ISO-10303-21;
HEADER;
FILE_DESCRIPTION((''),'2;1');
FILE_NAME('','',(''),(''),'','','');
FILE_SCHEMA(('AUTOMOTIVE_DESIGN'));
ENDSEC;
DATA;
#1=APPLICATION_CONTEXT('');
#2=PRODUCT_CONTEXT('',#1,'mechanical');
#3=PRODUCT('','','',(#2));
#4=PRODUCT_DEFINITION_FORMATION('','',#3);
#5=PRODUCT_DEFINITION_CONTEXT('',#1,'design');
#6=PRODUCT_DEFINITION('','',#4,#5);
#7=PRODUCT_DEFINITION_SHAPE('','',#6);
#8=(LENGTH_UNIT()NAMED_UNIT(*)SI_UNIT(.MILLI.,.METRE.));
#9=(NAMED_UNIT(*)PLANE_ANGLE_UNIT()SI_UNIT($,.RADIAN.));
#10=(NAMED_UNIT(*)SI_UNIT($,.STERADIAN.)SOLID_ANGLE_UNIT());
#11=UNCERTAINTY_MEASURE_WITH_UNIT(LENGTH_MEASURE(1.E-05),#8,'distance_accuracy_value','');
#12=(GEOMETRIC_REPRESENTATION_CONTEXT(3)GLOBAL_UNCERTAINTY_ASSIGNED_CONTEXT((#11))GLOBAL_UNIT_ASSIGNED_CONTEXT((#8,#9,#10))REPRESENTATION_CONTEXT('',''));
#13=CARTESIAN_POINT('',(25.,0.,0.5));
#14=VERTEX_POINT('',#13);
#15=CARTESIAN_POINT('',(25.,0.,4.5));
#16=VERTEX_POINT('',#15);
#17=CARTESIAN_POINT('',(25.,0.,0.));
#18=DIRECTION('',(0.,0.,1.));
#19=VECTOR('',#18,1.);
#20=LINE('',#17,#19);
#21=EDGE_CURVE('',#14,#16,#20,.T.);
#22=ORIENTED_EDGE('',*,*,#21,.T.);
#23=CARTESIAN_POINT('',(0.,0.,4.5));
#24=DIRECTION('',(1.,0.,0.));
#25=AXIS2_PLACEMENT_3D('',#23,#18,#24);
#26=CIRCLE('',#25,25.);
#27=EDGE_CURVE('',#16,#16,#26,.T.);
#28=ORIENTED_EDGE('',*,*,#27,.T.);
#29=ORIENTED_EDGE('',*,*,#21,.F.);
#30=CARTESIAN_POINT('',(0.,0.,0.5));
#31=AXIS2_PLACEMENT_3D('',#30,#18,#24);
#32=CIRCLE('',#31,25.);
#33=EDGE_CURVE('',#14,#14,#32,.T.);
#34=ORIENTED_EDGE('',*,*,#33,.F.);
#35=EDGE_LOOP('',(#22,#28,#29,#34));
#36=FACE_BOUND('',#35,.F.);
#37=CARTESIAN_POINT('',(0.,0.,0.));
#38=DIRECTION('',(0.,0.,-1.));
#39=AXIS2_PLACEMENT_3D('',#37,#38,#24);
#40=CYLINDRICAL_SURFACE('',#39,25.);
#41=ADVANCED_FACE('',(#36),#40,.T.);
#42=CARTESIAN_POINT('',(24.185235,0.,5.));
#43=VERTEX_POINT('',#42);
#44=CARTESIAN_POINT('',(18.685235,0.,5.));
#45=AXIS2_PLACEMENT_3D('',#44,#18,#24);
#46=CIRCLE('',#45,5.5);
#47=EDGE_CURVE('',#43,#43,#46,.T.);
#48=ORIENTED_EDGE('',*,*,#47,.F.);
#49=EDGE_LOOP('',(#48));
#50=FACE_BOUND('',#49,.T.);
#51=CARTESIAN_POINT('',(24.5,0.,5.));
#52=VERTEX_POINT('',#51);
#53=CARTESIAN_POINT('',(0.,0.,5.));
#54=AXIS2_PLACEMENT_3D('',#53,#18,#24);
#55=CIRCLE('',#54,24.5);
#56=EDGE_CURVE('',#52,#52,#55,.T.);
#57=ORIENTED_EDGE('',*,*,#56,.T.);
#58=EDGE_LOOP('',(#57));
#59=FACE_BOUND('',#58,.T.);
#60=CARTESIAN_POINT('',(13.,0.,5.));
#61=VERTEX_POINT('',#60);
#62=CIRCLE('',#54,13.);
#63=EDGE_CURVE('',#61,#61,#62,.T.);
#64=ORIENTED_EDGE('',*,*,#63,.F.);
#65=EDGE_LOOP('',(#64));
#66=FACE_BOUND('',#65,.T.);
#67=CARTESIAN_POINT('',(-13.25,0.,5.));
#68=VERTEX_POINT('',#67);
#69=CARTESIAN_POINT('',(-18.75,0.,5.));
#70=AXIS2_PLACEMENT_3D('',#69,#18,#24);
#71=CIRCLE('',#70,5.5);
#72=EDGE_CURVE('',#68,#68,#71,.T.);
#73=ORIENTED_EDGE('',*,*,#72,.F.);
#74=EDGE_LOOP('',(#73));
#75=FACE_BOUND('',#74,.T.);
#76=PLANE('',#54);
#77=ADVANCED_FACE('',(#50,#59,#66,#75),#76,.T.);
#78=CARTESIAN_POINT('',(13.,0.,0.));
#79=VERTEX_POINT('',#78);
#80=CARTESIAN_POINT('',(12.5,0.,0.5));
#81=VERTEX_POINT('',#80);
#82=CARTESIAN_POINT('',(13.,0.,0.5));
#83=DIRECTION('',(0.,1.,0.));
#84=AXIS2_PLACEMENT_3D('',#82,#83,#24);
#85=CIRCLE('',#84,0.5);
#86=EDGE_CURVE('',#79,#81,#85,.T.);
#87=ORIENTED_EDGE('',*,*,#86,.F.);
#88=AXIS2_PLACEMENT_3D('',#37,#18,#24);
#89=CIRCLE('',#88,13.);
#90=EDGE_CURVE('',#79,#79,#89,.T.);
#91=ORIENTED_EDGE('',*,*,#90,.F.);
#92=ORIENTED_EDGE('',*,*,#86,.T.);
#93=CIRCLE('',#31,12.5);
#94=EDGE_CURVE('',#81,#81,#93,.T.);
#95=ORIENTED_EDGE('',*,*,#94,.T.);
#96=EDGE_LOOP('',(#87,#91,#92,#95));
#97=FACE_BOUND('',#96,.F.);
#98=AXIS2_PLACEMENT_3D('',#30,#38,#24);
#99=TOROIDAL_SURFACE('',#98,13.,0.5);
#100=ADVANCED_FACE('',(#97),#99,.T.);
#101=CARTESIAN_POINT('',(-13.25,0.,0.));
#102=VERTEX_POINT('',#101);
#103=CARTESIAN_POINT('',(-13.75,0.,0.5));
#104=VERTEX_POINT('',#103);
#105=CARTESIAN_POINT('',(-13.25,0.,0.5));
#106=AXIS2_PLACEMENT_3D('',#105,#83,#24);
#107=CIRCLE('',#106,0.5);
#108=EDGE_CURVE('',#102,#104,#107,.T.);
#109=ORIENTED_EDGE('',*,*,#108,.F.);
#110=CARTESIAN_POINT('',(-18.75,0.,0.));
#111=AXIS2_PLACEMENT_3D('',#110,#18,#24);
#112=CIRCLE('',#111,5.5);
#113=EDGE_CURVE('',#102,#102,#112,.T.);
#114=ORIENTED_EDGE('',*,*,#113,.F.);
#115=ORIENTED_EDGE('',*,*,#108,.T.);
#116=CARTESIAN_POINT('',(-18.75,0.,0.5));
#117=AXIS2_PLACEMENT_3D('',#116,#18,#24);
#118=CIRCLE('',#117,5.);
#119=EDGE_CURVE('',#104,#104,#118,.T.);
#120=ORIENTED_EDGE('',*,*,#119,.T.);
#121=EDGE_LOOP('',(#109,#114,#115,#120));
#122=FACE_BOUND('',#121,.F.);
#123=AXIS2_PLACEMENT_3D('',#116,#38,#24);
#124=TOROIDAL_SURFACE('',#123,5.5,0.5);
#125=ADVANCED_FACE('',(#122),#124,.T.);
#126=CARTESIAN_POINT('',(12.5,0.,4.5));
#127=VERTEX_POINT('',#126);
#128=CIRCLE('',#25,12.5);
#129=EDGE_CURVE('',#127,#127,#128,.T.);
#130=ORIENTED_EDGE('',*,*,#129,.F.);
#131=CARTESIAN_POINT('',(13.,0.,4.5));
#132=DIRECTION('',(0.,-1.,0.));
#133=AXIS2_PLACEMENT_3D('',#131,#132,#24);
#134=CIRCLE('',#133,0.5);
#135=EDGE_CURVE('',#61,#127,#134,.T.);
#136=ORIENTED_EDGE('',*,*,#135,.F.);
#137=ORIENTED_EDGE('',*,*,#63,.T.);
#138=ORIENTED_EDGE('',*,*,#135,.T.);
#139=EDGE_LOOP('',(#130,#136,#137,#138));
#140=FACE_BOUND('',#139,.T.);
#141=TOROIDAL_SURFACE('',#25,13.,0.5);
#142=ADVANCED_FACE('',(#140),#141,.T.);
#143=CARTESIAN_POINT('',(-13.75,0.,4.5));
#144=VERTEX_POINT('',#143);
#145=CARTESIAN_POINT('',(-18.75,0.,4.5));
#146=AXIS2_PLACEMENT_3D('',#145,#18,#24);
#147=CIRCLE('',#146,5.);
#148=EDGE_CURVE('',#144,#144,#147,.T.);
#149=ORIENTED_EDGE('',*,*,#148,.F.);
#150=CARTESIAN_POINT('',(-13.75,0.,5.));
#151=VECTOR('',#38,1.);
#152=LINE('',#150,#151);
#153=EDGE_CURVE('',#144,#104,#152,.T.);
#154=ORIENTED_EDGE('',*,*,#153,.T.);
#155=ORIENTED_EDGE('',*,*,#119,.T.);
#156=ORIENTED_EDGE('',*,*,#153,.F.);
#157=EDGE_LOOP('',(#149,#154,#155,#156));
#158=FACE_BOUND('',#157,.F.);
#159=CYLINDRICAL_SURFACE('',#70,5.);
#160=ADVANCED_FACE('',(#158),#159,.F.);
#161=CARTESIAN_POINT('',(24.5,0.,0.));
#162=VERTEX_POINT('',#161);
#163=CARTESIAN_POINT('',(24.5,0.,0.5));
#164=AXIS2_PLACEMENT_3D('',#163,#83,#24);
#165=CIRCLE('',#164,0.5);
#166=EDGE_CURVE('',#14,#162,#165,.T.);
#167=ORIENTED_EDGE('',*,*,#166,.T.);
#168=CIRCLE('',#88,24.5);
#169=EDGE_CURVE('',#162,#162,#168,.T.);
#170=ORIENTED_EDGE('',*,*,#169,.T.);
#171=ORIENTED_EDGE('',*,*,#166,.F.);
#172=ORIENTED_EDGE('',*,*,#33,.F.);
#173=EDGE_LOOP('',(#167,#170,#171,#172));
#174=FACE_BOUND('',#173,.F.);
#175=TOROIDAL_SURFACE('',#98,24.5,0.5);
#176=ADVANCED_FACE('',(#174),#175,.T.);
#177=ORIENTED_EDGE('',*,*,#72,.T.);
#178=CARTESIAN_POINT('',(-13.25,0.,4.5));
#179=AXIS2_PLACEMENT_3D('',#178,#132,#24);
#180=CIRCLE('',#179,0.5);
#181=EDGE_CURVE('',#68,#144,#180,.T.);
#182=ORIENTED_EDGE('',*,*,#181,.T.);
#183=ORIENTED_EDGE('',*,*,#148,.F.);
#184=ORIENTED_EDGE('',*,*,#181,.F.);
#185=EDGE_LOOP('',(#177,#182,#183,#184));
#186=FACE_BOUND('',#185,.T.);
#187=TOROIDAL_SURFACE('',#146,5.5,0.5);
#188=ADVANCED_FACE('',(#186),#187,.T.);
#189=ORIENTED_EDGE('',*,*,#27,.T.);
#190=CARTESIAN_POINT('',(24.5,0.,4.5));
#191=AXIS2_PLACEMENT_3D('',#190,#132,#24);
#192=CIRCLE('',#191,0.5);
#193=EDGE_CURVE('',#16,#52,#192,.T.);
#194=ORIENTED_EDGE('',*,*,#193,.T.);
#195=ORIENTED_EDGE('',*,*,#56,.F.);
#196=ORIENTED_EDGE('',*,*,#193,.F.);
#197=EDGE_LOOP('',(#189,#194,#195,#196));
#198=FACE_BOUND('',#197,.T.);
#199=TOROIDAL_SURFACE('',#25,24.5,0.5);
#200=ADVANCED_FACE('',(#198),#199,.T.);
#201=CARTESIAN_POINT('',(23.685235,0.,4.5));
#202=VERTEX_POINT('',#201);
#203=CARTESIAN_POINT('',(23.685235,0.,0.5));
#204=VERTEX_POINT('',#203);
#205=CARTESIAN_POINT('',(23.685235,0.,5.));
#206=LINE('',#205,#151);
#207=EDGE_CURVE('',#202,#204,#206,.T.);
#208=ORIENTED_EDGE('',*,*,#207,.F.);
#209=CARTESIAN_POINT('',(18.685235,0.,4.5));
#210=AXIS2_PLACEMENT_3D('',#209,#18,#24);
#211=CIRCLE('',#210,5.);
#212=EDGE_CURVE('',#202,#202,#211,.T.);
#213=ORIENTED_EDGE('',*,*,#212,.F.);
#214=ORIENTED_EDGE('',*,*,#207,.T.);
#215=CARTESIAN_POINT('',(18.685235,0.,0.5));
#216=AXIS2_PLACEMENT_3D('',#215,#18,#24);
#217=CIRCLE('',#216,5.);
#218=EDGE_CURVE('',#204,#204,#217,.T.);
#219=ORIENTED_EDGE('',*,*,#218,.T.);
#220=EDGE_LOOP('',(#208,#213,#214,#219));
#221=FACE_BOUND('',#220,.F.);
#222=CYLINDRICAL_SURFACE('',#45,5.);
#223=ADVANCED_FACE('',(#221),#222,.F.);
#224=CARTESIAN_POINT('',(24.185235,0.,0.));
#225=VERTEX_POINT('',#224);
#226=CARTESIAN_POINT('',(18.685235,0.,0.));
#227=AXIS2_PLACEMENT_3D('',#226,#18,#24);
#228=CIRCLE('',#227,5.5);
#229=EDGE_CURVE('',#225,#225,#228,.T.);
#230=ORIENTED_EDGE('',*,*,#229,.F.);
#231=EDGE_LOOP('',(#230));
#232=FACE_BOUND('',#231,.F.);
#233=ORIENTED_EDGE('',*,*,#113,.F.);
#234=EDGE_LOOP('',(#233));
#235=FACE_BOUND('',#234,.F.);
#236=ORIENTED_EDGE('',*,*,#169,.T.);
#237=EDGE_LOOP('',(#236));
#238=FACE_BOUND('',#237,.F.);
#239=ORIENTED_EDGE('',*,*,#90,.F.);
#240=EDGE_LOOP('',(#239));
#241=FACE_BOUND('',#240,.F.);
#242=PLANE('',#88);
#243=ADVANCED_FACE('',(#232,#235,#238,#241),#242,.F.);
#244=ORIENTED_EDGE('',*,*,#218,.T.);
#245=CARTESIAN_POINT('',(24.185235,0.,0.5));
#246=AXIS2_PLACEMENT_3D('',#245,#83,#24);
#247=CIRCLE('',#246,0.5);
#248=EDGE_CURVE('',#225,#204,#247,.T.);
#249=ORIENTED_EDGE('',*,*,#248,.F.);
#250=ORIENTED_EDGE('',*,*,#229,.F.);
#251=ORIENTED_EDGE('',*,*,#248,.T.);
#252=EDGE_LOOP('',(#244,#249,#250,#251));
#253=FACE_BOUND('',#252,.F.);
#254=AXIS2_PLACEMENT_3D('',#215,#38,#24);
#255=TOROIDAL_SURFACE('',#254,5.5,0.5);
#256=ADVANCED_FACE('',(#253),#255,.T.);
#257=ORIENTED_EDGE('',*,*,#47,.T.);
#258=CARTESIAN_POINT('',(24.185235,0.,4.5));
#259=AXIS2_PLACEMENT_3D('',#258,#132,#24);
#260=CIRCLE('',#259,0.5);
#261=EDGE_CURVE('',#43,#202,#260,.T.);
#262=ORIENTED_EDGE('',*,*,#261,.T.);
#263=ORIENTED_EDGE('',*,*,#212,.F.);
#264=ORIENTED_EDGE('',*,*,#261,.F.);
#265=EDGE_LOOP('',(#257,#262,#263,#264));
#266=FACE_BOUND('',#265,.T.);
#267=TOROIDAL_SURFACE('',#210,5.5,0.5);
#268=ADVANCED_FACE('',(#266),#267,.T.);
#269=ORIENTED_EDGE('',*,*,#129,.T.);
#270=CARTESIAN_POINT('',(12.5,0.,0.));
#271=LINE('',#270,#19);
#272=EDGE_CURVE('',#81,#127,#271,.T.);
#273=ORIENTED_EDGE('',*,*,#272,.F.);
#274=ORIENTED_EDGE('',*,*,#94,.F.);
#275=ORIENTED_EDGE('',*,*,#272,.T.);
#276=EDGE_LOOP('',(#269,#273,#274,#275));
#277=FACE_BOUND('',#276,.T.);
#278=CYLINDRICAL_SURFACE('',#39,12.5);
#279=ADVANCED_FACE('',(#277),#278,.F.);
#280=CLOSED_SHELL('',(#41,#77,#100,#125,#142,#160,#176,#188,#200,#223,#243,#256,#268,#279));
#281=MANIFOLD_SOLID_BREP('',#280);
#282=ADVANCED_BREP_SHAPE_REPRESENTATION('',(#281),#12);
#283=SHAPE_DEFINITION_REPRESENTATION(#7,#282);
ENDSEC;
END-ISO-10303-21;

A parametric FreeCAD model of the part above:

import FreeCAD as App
import Part
import Sketcher


def edges_at(feature, points):
    """Names of the edges that pass closest to the given points."""
    edges = feature.Shape.Edges
    near = lambda p: min(range(len(edges)), key=lambda i: edges[i].distToShape(Part.Vertex(*p))[0])
    return sorted({f"Edge{near(p) + 1}" for p in points})

doc = App.newDocument("Part")
body = doc.addObject("PartDesign::Body", "Body")

sketch1 = body.newObject("Sketcher::SketchObject", "Sketch")
sketch1.AttachmentSupport = (doc.getObject("XY_Plane"), [""])
sketch1.MapMode = "FlatFace"
sketch1.addGeometry([
    Part.Circle(App.Vector(0, 0, 0), App.Vector(0, 0, 1), 25),
    Part.Circle(App.Vector(0, 0, 0), App.Vector(0, 0, 1), 12.5),
], False)
sketch1.addConstraint([
    Sketcher.Constraint("Coincident", 0, 3, -1, 1),
    Sketcher.Constraint("Coincident", 1, 3, -1, 1),
    Sketcher.Constraint("Diameter", 0, 50.0),
    Sketcher.Constraint("Diameter", 1, 25.0),
])
pad1 = body.newObject("PartDesign::Pad", "Pad")
pad1.Profile = sketch1
pad1.Length = 5

sketch2 = body.newObject("Sketcher::SketchObject", "Sketch001")
sketch2.AttachmentSupport = (doc.getObject("XY_Plane"), [""])
sketch2.MapMode = "FlatFace"
sketch2.AttachmentOffset = App.Placement(App.Vector(0, 0, 5), App.Rotation())
sketch2.addGeometry([
    Part.Circle(App.Vector(-18.75, 0, 0), App.Vector(0, 0, 1), 5),
    Part.Circle(App.Vector(18.685235, 0, 0), App.Vector(0, 0, 1), 5),
], False)
sketch2.addConstraint([
    Sketcher.Constraint("Equal", 0, 1),
    Sketcher.Constraint("PointOnObject", 0, 3, -1),
    Sketcher.Constraint("PointOnObject", 1, 3, -1),
    Sketcher.Constraint("Diameter", 0, 10.0),
    Sketcher.Constraint("DistanceX", 0, 3, -1, 1, 18.75),
    Sketcher.Constraint("DistanceX", -1, 1, 1, 3, 18.685235),
])
pocket1 = body.newObject("PartDesign::Pocket", "Pocket")
pocket1.Profile = sketch2
pocket1.Length = 25
doc.recompute()

fillet = body.newObject("PartDesign::Fillet", "Fillet")
fillet.Base = (pocket1, edges_at(pocket1, [
    (-25, 0, 5),
    (-23.75, 0, 5),
    (-12.5, 0, 5),
    (13.685, 0, 5),
]))
fillet.Radius = 0.5
doc.recompute()

fillet2 = body.newObject("PartDesign::Fillet", "Fillet001")
fillet2.Base = (fillet, edges_at(fillet, [
    (-25, 0, 0),
    (-12.5, 0, 0),
    (-23.75, 0, 0),
    (13.685, 0, 0),
]))
fillet2.Radius = 0.5

doc.recompute()
